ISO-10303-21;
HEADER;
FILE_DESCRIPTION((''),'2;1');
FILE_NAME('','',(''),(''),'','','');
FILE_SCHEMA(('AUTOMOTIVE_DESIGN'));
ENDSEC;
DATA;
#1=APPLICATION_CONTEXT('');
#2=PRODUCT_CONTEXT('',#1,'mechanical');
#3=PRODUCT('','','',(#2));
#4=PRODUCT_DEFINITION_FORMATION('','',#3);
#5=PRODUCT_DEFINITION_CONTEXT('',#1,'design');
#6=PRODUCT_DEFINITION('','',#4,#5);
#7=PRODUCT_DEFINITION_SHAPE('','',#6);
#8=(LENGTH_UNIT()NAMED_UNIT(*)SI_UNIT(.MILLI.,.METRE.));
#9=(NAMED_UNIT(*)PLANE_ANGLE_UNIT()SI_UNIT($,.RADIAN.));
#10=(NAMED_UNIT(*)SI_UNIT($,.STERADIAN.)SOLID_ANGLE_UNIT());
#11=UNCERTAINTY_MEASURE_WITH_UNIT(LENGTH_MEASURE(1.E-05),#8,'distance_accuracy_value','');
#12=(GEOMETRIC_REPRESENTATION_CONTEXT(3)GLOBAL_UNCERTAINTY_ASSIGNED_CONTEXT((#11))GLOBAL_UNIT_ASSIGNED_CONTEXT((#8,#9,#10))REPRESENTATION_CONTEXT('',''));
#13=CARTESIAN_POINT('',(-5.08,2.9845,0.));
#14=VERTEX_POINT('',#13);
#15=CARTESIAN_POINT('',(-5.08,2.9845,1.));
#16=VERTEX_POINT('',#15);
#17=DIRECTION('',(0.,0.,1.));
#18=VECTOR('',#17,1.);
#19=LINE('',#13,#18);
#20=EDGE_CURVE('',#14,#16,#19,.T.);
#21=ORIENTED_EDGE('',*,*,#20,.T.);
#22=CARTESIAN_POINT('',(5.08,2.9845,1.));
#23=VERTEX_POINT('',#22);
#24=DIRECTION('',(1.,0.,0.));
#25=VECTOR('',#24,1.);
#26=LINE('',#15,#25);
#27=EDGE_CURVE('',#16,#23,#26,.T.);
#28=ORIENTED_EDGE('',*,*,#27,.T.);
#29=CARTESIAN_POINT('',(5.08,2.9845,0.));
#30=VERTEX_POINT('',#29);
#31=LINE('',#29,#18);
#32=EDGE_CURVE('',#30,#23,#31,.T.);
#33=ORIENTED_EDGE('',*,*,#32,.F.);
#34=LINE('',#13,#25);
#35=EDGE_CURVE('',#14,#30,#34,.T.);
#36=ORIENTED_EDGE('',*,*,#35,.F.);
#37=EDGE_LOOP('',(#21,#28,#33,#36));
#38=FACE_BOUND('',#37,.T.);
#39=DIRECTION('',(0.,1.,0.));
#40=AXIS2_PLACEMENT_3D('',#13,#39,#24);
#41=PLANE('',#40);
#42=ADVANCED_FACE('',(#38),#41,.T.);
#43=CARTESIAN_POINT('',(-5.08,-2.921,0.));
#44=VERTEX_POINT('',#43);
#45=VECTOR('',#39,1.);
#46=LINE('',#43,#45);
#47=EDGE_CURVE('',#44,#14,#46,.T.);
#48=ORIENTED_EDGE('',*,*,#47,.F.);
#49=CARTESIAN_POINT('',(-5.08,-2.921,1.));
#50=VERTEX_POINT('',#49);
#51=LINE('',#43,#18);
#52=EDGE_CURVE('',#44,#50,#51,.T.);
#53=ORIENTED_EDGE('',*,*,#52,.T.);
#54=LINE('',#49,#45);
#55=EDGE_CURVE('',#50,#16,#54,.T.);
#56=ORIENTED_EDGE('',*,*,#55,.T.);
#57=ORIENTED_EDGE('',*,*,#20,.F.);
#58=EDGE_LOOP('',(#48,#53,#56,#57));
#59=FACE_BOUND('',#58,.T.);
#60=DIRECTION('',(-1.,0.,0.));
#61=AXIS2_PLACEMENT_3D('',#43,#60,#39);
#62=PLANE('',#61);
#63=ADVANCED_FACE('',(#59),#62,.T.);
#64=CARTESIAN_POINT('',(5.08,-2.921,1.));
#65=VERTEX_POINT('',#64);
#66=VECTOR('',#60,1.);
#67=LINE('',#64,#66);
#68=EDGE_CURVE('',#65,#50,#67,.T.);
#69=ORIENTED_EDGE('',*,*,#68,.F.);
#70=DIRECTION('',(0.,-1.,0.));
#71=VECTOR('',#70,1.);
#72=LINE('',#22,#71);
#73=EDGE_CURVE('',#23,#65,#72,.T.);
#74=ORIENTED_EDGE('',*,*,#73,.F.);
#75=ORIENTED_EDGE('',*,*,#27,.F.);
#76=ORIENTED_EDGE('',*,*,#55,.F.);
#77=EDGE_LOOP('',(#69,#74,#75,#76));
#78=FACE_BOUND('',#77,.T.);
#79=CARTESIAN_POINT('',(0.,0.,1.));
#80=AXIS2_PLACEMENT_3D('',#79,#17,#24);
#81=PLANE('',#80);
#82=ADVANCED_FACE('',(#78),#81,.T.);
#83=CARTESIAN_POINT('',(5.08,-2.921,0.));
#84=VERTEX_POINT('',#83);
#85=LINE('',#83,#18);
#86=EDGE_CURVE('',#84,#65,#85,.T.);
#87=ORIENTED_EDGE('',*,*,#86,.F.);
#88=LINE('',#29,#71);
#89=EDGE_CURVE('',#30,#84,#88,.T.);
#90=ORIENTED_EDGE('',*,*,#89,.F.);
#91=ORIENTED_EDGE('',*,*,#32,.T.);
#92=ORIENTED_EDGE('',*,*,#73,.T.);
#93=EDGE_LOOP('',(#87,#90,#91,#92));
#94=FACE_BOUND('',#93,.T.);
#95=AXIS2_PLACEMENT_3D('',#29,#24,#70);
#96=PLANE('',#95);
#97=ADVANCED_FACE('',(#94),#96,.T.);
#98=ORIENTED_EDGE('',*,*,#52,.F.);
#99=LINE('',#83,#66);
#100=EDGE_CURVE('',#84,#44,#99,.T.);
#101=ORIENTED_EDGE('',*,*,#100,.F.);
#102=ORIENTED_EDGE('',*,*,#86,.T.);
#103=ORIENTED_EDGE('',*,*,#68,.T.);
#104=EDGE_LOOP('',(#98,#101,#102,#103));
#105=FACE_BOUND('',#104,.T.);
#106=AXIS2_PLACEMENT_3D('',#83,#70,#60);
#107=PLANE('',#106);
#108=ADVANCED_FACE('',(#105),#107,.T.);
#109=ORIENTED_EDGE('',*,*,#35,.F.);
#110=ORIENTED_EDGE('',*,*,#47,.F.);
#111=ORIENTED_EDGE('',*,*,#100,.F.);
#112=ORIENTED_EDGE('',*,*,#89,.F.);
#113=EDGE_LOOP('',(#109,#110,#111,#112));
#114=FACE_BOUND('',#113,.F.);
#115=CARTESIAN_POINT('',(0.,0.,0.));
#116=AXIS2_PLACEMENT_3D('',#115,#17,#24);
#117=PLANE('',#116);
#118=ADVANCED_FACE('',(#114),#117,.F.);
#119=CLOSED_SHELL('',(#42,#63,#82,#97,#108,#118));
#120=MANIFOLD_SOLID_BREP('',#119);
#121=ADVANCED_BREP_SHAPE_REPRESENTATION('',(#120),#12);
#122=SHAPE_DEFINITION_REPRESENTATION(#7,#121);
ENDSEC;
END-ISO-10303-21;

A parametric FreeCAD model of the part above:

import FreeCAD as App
import Part
import Sketcher

V = App.Vector

doc = App.newDocument("Part")
body = doc.addObject("PartDesign::Body", "Body")

sketch1 = doc.addObject("Sketcher::SketchObject", "Sketch")
body.addObject(sketch1)
sketch1.AttachmentSupport = (doc.XY_Plane, [""])
sketch1.MapMode = "FlatFace"
sketch1.addGeometry([
    Part.LineSegment(V(5, 3, 0), V(-5, 3, 0)),
    Part.LineSegment(V(-5, 3, 0), V(-5, -3, 0)),
    Part.LineSegment(V(-5, -3, 0), V(5, -3, 0)),
    Part.LineSegment(V(5, -3, 0), V(5, 3, 0)),
], False)
sketch1.addConstraint([
    Sketcher.Constraint("Coincident", 0, 2, 1, 1),
    Sketcher.Constraint("Coincident", 1, 2, 2, 1),
    Sketcher.Constraint("Coincident", 2, 2, 3, 1),
    Sketcher.Constraint("Coincident", 3, 2, 0, 1),
    Sketcher.Constraint("Horizontal", 0),
    Sketcher.Constraint("Vertical", 1),
    Sketcher.Constraint("Horizontal", 2),
    Sketcher.Constraint("Vertical", 3),
    Sketcher.Constraint("DistanceX", 0, 2, 0, 1, 10.16),
    Sketcher.Constraint("DistanceX", 0, 2, -1, 1, 5.08),
    Sketcher.Constraint("DistanceY", 1, 2, 1, 1, 5.9055),
    Sketcher.Constraint("DistanceY", 1, 2, -1, 1, 2.921),
])
pad1 = doc.addObject("PartDesign::Pad", "Pad")
body.addObject(pad1)
pad1.Profile = sketch1
pad1.Length = 1

doc.recompute()
